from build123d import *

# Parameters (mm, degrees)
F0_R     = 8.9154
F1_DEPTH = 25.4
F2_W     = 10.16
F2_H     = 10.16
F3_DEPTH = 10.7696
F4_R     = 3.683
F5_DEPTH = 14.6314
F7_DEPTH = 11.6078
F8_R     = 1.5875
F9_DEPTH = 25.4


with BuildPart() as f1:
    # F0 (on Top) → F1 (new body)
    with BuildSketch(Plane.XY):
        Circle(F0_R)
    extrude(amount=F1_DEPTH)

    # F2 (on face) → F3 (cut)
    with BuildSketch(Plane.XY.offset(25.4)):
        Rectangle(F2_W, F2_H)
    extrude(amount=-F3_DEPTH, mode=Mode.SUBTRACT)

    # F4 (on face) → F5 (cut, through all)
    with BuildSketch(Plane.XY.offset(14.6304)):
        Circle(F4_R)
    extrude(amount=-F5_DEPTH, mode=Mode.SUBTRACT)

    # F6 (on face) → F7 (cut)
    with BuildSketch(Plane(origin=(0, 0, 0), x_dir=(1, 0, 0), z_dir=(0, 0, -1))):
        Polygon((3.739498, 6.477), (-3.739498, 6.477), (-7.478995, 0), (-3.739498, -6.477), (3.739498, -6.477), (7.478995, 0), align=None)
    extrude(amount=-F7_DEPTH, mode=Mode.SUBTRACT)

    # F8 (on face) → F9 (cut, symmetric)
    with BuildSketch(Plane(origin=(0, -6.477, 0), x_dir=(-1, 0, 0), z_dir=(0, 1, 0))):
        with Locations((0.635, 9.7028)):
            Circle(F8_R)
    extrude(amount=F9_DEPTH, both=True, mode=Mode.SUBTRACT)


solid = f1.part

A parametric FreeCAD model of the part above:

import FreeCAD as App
import Part
import Sketcher

V = App.Vector
Q = App.Units.Quantity


def add_polygon(sketch, points):
    """Adds a closed chain of lines whose ends are joined by coincident constraints."""
    first, n = sketch.GeometryCount, len(points)
    for a, b in zip(points, points[1:] + points[:1]):
        sketch.addGeometry(Part.LineSegment(App.Vector(*a, 0), App.Vector(*b, 0)), False)
    for i in range(n):
        sketch.addConstraint(Sketcher.Constraint("Coincident", first + i, 2, first + (i + 1) % n, 1))

doc = App.newDocument("Part")
body = doc.addObject("PartDesign::Body", "Body")

sketch1 = body.newObject("Sketcher::SketchObject", "Sketch")
sketch1.AttachmentSupport = (doc.getObject("XY_Plane"), [""])
sketch1.MapMode = "FlatFace"
sketch1.addGeometry(Part.Circle(V(0, 0, 0), V(0, 0, 1), 8.9154), False)
sketch1.addConstraint([
    Sketcher.Constraint("Coincident", 0, 3, -1, 1),
    Sketcher.Constraint("Diameter", 0, Q("0.702 in")),
])
pad1 = body.newObject("PartDesign::Pad", "Pad")
pad1.Profile = sketch1
pad1.Length = Q("1 in")

sketch2 = body.newObject("Sketcher::SketchObject", "Sketch001")
sketch2.AttachmentSupport = (doc.getObject("XY_Plane"), [""])
sketch2.MapMode = "FlatFace"
sketch2.AttachmentOffset = App.Placement(V(0, 0, 1 * 25.4), App.Rotation())
add_polygon(sketch2, [(-5.08, 5.08), (-5.08, -5.08), (5.08, -5.08), (5.08, 5.08)])
sketch2.addConstraint([
    Sketcher.Constraint("Vertical", 0),
    Sketcher.Constraint("Horizontal", 1),
    Sketcher.Constraint("Vertical", 2),
    Sketcher.Constraint("Horizontal", 3),
    Sketcher.Constraint("Symmetric", 0, 2, 2, 2, -1, 1),
    Sketcher.Constraint("Equal", 3, 0),
    Sketcher.Constraint("DistanceX", 1, 1, 1, 2, Q("0.4 in")),
])
pocket1 = body.newObject("PartDesign::Pocket", "Pocket")
pocket1.Profile = sketch2
pocket1.Length = Q("0.424 in")

sketch3 = body.newObject("Sketcher::SketchObject", "Sketch002")
sketch3.AttachmentSupport = (doc.getObject("XY_Plane"), [""])
sketch3.MapMode = "FlatFace"
sketch3.AttachmentOffset = App.Placement(V(0, 0, 0.576 * 25.4), App.Rotation())
sketch3.addGeometry(Part.Circle(V(0, 0, 0), V(0, 0, 1), 3.683), False)
sketch3.addConstraint([
    Sketcher.Constraint("Coincident", 0, 3, -1, 1),
    Sketcher.Constraint("Diameter", 0, Q("0.29 in")),
])
pocket2 = body.newObject("PartDesign::Pocket", "Pocket001")
pocket2.Profile = sketch3
pocket2.Type = "ThroughAll"

sketch4 = body.newObject("Sketcher::SketchObject", "Sketch003")
sketch4.AttachmentSupport = (doc.getObject("XY_Plane"), [""])
sketch4.MapMode = "FlatFace"
add_polygon(sketch4, [(3.739498, -6.477), (-3.739498, -6.477), (-7.478995, 0), (-3.739498, 6.477), (3.739498, 6.477), (7.478995, 0)])
sketch4.addConstraint([
    Sketcher.Constraint("Horizontal", 0),
    Sketcher.Constraint("Horizontal", 3),
    Sketcher.Constraint("Symmetric", 0, 2, 3, 2, -1, 1),
    Sketcher.Constraint("Symmetric", 1, 2, 4, 2, -1, 1),
    Sketcher.Constraint("PointOnObject", 1, 2, -1),
    Sketcher.Constraint("Parallel", 2, 5),
    Sketcher.Constraint("Vertical", 0, 2, 2, 2),
    Sketcher.Constraint("Angle", 1, Q("119.999995 deg")),
    Sketcher.Constraint("DistanceY", 0, 2, 2, 2, Q("0.51 in")),
    Sketcher.Constraint("DistanceX", 0, 2, -1, 1, Q("3.739498 mm")),
])
pocket3 = body.newObject("PartDesign::Pocket", "Pocket002")
pocket3.Profile = sketch4
pocket3.Length = Q("0.457 in")
pocket3.Reversed = True

sketch5 = body.newObject("Sketcher::SketchObject", "Sketch004")
sketch5.AttachmentSupport = (doc.getObject("XZ_Plane"), [""])
sketch5.MapMode = "FlatFace"
sketch5.AttachmentOffset = App.Placement(V(0, 0, 0.255 * 25.4), App.Rotation())
sketch5.addGeometry(Part.Circle(V(-0.635, 9.7028, 0), V(0, 0, 1), 1.5875), False)
sketch5.addConstraint([
    Sketcher.Constraint("Diameter", 0, Q("0.125 in")),
    Sketcher.Constraint("DistanceX", 0, 3, -1, 1, Q("0.025 in")),
    Sketcher.Constraint("DistanceY", -1, 1, 0, 3, Q("0.382 in")),
])
pocket4 = body.newObject("PartDesign::Pocket", "Pocket003")
pocket4.Profile = sketch5
pocket4.Length = Q("2 in")
pocket4.Midplane = True

doc.recompute()
